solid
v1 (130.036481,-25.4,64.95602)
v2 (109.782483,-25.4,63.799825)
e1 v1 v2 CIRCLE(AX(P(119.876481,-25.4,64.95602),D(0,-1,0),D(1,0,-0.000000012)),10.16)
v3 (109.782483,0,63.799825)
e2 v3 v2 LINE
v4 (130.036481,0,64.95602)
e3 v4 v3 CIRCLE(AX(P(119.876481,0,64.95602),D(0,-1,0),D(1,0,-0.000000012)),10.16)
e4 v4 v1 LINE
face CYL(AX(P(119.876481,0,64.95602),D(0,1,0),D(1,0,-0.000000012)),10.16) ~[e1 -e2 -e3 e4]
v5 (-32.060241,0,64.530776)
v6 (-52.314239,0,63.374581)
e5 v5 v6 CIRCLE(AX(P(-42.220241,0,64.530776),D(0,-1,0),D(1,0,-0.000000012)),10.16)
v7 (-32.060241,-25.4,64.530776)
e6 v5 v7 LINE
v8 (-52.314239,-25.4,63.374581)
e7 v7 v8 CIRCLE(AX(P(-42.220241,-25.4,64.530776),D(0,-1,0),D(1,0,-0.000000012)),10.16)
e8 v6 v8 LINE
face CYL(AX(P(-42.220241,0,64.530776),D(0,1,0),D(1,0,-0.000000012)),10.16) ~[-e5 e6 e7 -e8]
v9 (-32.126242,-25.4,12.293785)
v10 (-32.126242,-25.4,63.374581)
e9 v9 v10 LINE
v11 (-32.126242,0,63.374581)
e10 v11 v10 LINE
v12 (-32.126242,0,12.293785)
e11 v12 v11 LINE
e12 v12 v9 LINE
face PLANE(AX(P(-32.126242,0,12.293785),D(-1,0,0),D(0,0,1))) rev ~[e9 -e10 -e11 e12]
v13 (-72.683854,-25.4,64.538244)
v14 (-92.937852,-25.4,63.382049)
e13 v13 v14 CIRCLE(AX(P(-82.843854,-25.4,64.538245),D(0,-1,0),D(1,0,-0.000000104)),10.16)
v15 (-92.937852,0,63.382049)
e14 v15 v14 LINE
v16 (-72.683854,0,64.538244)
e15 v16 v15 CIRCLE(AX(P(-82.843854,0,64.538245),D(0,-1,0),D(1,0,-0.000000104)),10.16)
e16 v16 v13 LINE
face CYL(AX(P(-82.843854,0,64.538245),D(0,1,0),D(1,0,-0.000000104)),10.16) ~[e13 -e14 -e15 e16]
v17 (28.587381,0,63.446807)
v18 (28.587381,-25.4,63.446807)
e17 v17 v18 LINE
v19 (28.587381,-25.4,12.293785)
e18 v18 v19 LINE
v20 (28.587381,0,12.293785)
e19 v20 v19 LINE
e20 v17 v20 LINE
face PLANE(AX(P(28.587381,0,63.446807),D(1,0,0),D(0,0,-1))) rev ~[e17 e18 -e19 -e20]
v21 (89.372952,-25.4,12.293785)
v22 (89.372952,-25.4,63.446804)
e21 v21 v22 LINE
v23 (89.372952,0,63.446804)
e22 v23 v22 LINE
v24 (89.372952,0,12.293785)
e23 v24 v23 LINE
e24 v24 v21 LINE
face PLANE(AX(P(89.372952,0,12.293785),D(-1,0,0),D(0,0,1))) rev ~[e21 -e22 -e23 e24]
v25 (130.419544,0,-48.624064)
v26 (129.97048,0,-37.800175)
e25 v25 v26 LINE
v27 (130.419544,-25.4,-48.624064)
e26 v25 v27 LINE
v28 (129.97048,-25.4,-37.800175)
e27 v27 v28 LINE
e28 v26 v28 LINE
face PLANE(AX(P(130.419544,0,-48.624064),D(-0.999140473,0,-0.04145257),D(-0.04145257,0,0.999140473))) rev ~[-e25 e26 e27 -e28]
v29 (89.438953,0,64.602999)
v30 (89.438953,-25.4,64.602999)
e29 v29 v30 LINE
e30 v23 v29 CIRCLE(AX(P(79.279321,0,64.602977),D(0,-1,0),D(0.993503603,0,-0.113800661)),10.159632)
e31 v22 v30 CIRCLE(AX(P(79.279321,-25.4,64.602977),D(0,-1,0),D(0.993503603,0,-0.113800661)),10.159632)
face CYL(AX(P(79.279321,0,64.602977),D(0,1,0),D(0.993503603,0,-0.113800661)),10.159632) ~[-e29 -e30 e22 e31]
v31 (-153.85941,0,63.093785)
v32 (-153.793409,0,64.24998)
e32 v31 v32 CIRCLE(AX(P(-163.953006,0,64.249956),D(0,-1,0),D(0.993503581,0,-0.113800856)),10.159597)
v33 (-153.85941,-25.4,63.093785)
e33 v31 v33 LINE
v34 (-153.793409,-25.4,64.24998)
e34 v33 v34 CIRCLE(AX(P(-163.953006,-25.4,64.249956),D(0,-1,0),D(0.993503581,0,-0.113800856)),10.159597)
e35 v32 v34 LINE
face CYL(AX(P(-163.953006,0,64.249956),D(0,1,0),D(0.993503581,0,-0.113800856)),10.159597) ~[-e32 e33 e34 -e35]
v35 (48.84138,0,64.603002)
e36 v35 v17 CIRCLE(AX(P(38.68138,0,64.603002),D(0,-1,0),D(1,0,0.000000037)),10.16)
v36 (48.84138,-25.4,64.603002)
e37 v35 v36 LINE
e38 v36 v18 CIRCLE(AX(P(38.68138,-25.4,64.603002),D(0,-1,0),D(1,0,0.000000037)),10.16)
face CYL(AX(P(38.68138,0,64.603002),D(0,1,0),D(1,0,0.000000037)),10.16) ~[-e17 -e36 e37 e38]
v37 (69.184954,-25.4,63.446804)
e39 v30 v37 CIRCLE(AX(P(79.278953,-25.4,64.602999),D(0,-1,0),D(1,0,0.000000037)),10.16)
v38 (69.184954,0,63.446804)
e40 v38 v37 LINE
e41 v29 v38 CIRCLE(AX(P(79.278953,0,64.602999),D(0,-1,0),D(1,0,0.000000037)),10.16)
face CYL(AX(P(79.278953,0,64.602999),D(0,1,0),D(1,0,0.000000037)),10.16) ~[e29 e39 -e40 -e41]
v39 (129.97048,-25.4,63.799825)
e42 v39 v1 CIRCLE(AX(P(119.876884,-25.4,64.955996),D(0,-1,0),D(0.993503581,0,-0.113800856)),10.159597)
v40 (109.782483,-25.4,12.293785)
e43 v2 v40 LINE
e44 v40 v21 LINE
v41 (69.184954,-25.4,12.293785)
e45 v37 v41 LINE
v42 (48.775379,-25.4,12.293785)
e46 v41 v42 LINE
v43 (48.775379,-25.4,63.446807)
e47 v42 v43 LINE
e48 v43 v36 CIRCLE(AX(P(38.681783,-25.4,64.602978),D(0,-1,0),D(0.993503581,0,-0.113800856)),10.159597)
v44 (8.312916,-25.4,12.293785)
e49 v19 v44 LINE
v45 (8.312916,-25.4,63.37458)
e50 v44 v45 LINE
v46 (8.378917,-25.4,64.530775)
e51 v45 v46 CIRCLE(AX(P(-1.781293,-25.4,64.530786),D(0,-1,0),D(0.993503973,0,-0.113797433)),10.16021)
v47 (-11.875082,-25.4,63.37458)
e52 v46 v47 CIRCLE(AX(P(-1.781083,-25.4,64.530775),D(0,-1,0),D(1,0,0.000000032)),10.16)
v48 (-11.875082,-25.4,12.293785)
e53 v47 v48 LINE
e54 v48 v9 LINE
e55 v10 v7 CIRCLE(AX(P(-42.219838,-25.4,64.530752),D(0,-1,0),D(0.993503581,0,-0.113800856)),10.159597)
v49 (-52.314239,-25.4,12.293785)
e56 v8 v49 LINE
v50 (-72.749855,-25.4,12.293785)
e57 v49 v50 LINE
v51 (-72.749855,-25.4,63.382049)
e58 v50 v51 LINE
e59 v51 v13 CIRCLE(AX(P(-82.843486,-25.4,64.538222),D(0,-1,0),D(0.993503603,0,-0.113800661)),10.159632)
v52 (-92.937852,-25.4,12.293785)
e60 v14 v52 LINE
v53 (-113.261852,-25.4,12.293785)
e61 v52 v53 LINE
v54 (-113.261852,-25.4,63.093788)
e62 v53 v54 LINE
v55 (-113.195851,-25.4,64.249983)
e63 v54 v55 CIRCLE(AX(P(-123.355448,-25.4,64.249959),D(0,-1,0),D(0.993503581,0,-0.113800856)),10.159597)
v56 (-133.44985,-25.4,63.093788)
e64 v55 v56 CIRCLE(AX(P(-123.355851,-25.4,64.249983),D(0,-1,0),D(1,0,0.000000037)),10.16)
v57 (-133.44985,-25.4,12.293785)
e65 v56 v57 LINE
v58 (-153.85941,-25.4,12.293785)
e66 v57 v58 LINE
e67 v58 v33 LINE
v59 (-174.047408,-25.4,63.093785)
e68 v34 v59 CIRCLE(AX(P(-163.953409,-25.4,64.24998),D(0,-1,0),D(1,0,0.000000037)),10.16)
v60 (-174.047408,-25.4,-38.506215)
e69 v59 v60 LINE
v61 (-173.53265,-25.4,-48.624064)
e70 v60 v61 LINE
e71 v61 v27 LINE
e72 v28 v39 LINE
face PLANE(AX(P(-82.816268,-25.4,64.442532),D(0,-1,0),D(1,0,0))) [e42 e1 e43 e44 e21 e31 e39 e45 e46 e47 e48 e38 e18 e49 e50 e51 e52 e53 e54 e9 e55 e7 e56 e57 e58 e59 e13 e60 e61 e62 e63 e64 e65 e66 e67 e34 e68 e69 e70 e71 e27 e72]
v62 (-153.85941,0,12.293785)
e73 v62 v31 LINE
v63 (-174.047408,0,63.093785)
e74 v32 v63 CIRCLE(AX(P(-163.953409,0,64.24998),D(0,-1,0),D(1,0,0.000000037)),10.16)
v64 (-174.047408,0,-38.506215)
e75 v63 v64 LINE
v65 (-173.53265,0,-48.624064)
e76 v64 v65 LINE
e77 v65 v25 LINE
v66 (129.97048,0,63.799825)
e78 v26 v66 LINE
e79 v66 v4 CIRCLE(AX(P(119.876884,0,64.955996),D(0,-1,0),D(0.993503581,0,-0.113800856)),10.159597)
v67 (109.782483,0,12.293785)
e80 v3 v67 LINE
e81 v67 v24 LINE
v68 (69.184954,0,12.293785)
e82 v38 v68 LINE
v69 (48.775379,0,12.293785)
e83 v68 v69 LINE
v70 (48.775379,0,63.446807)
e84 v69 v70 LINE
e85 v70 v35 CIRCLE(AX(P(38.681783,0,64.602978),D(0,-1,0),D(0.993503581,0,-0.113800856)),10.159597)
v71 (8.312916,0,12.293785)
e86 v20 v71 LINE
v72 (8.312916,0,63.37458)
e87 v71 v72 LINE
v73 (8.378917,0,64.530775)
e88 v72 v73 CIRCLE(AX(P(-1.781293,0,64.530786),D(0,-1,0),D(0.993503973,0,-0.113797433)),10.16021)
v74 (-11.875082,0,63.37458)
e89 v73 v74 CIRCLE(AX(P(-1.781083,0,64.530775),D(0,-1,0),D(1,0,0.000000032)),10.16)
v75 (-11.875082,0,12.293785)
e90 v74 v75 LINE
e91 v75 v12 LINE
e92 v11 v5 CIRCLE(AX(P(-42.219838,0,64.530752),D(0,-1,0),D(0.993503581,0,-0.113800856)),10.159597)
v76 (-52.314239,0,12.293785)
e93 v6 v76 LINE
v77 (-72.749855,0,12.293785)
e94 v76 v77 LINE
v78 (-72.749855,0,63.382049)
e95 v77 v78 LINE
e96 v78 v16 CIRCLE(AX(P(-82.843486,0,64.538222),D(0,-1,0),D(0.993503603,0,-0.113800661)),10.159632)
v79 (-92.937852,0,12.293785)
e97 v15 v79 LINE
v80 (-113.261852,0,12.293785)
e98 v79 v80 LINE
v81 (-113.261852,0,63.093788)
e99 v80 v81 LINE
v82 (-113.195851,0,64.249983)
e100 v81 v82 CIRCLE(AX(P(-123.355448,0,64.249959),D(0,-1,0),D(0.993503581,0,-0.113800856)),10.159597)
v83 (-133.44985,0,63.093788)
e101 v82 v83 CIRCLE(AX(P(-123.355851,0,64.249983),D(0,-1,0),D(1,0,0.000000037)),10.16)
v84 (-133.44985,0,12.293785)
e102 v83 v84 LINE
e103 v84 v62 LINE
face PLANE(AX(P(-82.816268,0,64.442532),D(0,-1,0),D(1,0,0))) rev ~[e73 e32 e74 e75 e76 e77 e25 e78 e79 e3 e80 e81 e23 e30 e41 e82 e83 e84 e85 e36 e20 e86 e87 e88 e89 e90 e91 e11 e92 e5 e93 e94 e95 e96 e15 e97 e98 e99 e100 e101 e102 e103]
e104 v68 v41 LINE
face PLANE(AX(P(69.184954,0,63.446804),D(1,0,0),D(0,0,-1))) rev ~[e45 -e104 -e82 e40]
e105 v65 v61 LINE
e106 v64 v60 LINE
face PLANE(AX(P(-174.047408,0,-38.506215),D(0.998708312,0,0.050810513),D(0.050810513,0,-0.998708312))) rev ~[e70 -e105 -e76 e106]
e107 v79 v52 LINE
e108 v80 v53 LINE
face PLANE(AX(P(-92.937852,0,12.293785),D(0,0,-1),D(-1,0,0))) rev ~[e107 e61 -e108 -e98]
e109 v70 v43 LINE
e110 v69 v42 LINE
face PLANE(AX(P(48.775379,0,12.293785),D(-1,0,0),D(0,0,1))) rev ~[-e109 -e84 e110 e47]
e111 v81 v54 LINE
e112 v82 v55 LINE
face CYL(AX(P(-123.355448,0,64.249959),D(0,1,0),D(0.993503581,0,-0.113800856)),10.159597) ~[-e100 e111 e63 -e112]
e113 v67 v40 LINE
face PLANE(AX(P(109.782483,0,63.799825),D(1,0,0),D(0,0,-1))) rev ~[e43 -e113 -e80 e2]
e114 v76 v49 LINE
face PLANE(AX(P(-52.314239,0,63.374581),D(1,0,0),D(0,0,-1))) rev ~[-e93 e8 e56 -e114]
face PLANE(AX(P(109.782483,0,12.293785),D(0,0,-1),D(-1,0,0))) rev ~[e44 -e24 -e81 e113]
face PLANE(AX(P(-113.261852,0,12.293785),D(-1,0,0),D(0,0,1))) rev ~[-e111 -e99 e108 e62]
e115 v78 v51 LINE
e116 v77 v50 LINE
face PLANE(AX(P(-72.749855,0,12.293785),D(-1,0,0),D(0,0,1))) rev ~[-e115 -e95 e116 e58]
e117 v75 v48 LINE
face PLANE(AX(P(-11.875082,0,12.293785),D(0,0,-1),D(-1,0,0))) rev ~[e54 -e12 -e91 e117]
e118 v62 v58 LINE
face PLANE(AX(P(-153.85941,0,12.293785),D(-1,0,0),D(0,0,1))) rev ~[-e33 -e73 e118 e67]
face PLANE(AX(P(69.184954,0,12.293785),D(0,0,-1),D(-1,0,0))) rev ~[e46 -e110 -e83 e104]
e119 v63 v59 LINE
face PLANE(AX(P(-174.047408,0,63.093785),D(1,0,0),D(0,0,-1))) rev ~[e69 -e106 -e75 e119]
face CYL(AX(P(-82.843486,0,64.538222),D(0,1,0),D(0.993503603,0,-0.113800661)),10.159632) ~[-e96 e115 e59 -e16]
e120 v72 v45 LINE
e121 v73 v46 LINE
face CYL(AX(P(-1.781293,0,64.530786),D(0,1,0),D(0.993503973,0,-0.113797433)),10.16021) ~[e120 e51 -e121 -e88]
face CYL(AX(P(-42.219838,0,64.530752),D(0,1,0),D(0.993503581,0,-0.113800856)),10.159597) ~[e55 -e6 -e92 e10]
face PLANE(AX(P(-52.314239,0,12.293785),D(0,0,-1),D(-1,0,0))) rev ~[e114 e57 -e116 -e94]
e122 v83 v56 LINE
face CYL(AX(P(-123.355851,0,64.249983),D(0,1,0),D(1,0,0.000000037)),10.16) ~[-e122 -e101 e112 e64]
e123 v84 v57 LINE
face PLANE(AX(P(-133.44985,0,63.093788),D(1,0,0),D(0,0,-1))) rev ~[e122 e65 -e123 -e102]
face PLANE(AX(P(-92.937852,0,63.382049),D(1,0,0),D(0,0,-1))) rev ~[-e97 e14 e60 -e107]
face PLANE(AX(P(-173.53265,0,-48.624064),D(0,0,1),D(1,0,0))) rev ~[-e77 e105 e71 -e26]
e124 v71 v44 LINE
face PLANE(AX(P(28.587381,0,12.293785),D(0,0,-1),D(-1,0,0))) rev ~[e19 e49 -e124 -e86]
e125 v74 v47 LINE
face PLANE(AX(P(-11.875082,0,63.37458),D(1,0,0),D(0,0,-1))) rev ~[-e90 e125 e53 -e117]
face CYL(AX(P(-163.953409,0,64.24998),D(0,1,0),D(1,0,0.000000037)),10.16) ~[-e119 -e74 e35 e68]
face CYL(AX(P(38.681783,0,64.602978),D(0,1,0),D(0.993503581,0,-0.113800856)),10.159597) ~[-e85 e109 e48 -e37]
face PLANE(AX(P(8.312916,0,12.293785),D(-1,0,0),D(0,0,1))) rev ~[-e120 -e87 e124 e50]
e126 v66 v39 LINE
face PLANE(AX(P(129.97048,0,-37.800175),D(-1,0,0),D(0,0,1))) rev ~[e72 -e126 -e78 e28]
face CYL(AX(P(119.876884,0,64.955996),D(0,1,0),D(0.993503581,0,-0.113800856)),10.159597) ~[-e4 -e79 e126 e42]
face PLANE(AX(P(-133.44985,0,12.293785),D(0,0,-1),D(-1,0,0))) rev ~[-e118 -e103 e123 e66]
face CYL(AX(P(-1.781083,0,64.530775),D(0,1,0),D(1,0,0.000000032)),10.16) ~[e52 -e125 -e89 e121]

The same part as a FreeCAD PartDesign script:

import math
import FreeCAD as App
import Part
import Sketcher
from FreeCAD import Vector
Q = App.Units.Quantity

doc = App.newDocument("Part")
body = doc.addObject("PartDesign::Body", "Body")

# Sketch on XZ plane
sketch1 = body.newObject("Sketcher::SketchObject", "Sketch")
sketch1.AttachmentSupport = (doc.getObject("XZ_Plane"), [""])
sketch1.MapMode = "FlatFace"
sketch1.addGeometry([
    Part.ArcOfCircle(Part.Circle(Vector(-82.8, 64.5, 0), Vector(0, 0, 1), 10.2), math.radians(-6.53), math.radians(0)),  # 0
    Part.ArcOfCircle(Part.Circle(Vector(-82.8, 64.5, 0), Vector(0, 0, 1), 10.2), math.radians(0), math.radians(187)),  # 1
    Part.LineSegment(Vector(-92.9, 63.4, 0), Vector(-92.9, 12.3, 0)),  # 2
    Part.LineSegment(Vector(-92.9, 12.3, 0), Vector(-113.3, 12.3, 0)),  # 3
    Part.LineSegment(Vector(-113.3, 12.3, 0), Vector(-113.3, 63.1, 0)),  # 4
    Part.ArcOfCircle(Part.Circle(Vector(-123.4, 64.2, 0), Vector(0, 0, 1), 10.2), math.radians(-6.53), math.radians(0)),  # 5
    Part.ArcOfCircle(Part.Circle(Vector(-123.4, 64.2, 0), Vector(0, 0, 1), 10.2), math.radians(0), math.radians(187)),  # 6
    Part.LineSegment(Vector(-133.4, 63.1, 0), Vector(-133.4, 12.3, 0)),  # 7
    Part.LineSegment(Vector(-133.4, 12.3, 0), Vector(-153.9, 12.3, 0)),  # 8
    Part.LineSegment(Vector(-153.9, 12.3, 0), Vector(-153.9, 63.1, 0)),  # 9
    Part.ArcOfCircle(Part.Circle(Vector(-164, 64.2, 0), Vector(0, 0, 1), 10.2), math.radians(-6.53), math.radians(0)),  # 10
    Part.ArcOfCircle(Part.Circle(Vector(-164, 64.2, 0), Vector(0, 0, 1), 10.2), math.radians(0), math.radians(187)),  # 11
    Part.LineSegment(Vector(-174, 63.1, 0), Vector(-174, -38.5, 0)),  # 12
    Part.LineSegment(Vector(-174, -38.5, 0), Vector(-173.5, -48.6, 0)),  # 13
    Part.LineSegment(Vector(-173.5, -48.6, 0), Vector(130.4, -48.6, 0)),  # 14
    Part.LineSegment(Vector(130.4, -48.6, 0), Vector(130, -37.8, 0)),  # 15
    Part.LineSegment(Vector(130, -37.8, 0), Vector(130, 63.8, 0)),  # 16
    Part.ArcOfCircle(Part.Circle(Vector(119.9, 65, 0), Vector(0, 0, 1), 10.2), math.radians(-6.53), math.radians(0)),  # 17
    Part.ArcOfCircle(Part.Circle(Vector(119.9, 65, 0), Vector(0, 0, 1), 10.2), math.radians(0), math.radians(187)),  # 18
    Part.LineSegment(Vector(109.8, 63.8, 0), Vector(109.8, 12.3, 0)),  # 19
    Part.LineSegment(Vector(109.8, 12.3, 0), Vector(89.4, 12.3, 0)),  # 20
    Part.LineSegment(Vector(89.4, 12.3, 0), Vector(89.4, 63.4, 0)),  # 21
    Part.ArcOfCircle(Part.Circle(Vector(79.3, 64.6, 0), Vector(0, 0, 1), 10.2), math.radians(-6.53), math.radians(0)),  # 22
    Part.ArcOfCircle(Part.Circle(Vector(79.3, 64.6, 0), Vector(0, 0, 1), 10.2), math.radians(0), math.radians(187)),  # 23
    Part.LineSegment(Vector(69.2, 63.4, 0), Vector(69.2, 12.3, 0)),  # 24
    Part.LineSegment(Vector(69.2, 12.3, 0), Vector(48.8, 12.3, 0)),  # 25
    Part.LineSegment(Vector(48.8, 12.3, 0), Vector(48.8, 63.4, 0)),  # 26
    Part.ArcOfCircle(Part.Circle(Vector(38.7, 64.6, 0), Vector(0, 0, 1), 10.2), math.radians(-6.53), math.radians(0)),  # 27
    Part.ArcOfCircle(Part.Circle(Vector(38.7, 64.6, 0), Vector(0, 0, 1), 10.2), math.radians(0), math.radians(187)),  # 28
    Part.LineSegment(Vector(28.6, 63.4, 0), Vector(28.6, 12.3, 0)),  # 29
    Part.LineSegment(Vector(28.6, 12.3, 0), Vector(8.3, 12.3, 0)),  # 30
    Part.LineSegment(Vector(8.3, 12.3, 0), Vector(8.3, 63.4, 0)),  # 31
    Part.ArcOfCircle(Part.Circle(Vector(-1.8, 64.5, 0), Vector(0, 0, 1), 10.2), math.radians(-6.53), math.radians(0)),  # 32
    Part.ArcOfCircle(Part.Circle(Vector(-1.8, 64.5, 0), Vector(0, 0, 1), 10.2), math.radians(0), math.radians(187)),  # 33
    Part.LineSegment(Vector(-11.9, 63.4, 0), Vector(-11.9, 12.3, 0)),  # 34
    Part.LineSegment(Vector(-11.9, 12.3, 0), Vector(-32.1, 12.3, 0)),  # 35
    Part.LineSegment(Vector(-32.1, 12.3, 0), Vector(-32.1, 63.4, 0)),  # 36
    Part.ArcOfCircle(Part.Circle(Vector(-42.2, 64.5, 0), Vector(0, 0, 1), 10.2), math.radians(-6.53), math.radians(0)),  # 37
    Part.ArcOfCircle(Part.Circle(Vector(-42.2, 64.5, 0), Vector(0, 0, 1), 10.2), math.radians(0), math.radians(187)),  # 38
    Part.LineSegment(Vector(-52.3, 63.4, 0), Vector(-52.3, 12.3, 0)),  # 39
    Part.LineSegment(Vector(-52.3, 12.3, 0), Vector(-72.7, 12.3, 0)),  # 40
    Part.LineSegment(Vector(-72.7, 12.3, 0), Vector(-72.7, 63.4, 0)),  # 41
], False)
sketch1.addConstraint([
    Sketcher.Constraint("Coincident", 0, 2, 1, 1),
    Sketcher.Constraint("Coincident", 1, 2, 2, 1),
    Sketcher.Constraint("Coincident", 2, 2, 3, 1),
    Sketcher.Constraint("Coincident", 3, 2, 4, 1),
    Sketcher.Constraint("Coincident", 4, 2, 5, 1),
    Sketcher.Constraint("Coincident", 5, 2, 6, 1),
    Sketcher.Constraint("Coincident", 6, 2, 7, 1),
    Sketcher.Constraint("Coincident", 7, 2, 8, 1),
    Sketcher.Constraint("Coincident", 8, 2, 9, 1),
    Sketcher.Constraint("Coincident", 9, 2, 10, 1),
    Sketcher.Constraint("Coincident", 10, 2, 11, 1),
    Sketcher.Constraint("Coincident", 11, 2, 12, 1),
    Sketcher.Constraint("Coincident", 12, 2, 13, 1),
    Sketcher.Constraint("Coincident", 13, 2, 14, 1),
    Sketcher.Constraint("Coincident", 14, 2, 15, 1),
    Sketcher.Constraint("Coincident", 15, 2, 16, 1),
    Sketcher.Constraint("Coincident", 16, 2, 17, 1),
    Sketcher.Constraint("Coincident", 17, 2, 18, 1),
    Sketcher.Constraint("Coincident", 18, 2, 19, 1),
    Sketcher.Constraint("Coincident", 19, 2, 20, 1),
    Sketcher.Constraint("Coincident", 20, 2, 21, 1),
    Sketcher.Constraint("Coincident", 21, 2, 22, 1),
    Sketcher.Constraint("Coincident", 22, 2, 23, 1),
    Sketcher.Constraint("Coincident", 23, 2, 24, 1),
    Sketcher.Constraint("Coincident", 24, 2, 25, 1),
    Sketcher.Constraint("Coincident", 25, 2, 26, 1),
    Sketcher.Constraint("Coincident", 26, 2, 27, 1),
    Sketcher.Constraint("Coincident", 27, 2, 28, 1),
    Sketcher.Constraint("Coincident", 28, 2, 29, 1),
    Sketcher.Constraint("Coincident", 29, 2, 30, 1),
    Sketcher.Constraint("Coincident", 30, 2, 31, 1),
    Sketcher.Constraint("Coincident", 31, 2, 32, 1),
    Sketcher.Constraint("Tangent", 32, 2, 33, 1),
    Sketcher.Constraint("Coincident", 33, 2, 34, 1),
    Sketcher.Constraint("Coincident", 34, 2, 35, 1),
    Sketcher.Constraint("Coincident", 35, 2, 36, 1),
    Sketcher.Constraint("Coincident", 36, 2, 37, 1),
    Sketcher.Constraint("Coincident", 37, 2, 38, 1),
    Sketcher.Constraint("Coincident", 38, 2, 39, 1),
    Sketcher.Constraint("Coincident", 39, 2, 40, 1),
    Sketcher.Constraint("Coincident", 40, 2, 41, 1),
    Sketcher.Constraint("Coincident", 41, 2, 0, 1),
    Sketcher.Constraint("Vertical", 2),
    Sketcher.Constraint("Horizontal", 3),
    Sketcher.Constraint("Vertical", 4),
    Sketcher.Constraint("Vertical", 7),
    Sketcher.Constraint("Horizontal", 8),
    Sketcher.Constraint("Vertical", 9),
    Sketcher.Constraint("Vertical", 12),
    Sketcher.Constraint("Horizontal", 14),
    Sketcher.Constraint("Vertical", 16),
    Sketcher.Constraint("Vertical", 19),
    Sketcher.Constraint("Horizontal", 20),
    Sketcher.Constraint("Vertical", 21),
    Sketcher.Constraint("Vertical", 24),
    Sketcher.Constraint("Horizontal", 25),
    Sketcher.Constraint("Vertical", 26),
    Sketcher.Constraint("Vertical", 29),
    Sketcher.Constraint("Horizontal", 30),
    Sketcher.Constraint("Vertical", 31),
    Sketcher.Constraint("Vertical", 34),
    Sketcher.Constraint("Horizontal", 35),
    Sketcher.Constraint("Vertical", 36),
    Sketcher.Constraint("Vertical", 39),
    Sketcher.Constraint("Horizontal", 40),
    Sketcher.Constraint("Vertical", 41),
    Sketcher.Constraint("Equal", 1, 6),
    Sketcher.Constraint("Equal", 5, 10),
    Sketcher.Constraint("Equal", 6, 11),
    Sketcher.Constraint("Equal", 10, 17),
    Sketcher.Constraint("Equal", 11, 18),
    Sketcher.Constraint("Equal", 0, 22),
    Sketcher.Constraint("Equal", 18, 23),
    Sketcher.Constraint("Equal", 17, 27),
    Sketcher.Constraint("Equal", 23, 28),
    Sketcher.Constraint("Equal", 28, 33),
    Sketcher.Constraint("Equal", 27, 37),
    Sketcher.Constraint("Equal", 33, 38),
    Sketcher.Constraint("Horizontal", 22, 3, 27, 3),
    Sketcher.Constraint("Horizontal", 33, 3, 38, 3),
    Sketcher.Constraint("Horizontal", 1, 3, 0, 2),
    Sketcher.Constraint("Horizontal", 6, 3, 5, 2),
    Sketcher.Constraint("Horizontal", 4, 2, 6, 2),
    Sketcher.Constraint("Horizontal", 3, 2, 7, 2),
    Sketcher.Constraint("Horizontal", 11, 3, 10, 2),
    Sketcher.Constraint("Horizontal", 9, 2, 11, 2),
    Sketcher.Constraint("Horizontal", 18, 3, 17, 2),
    Sketcher.Constraint("Horizontal", 16, 2, 18, 2),
    Sketcher.Constraint("Horizontal", 8, 2, 19, 2),
    Sketcher.Constraint("Horizontal", 23, 3, 22, 2),
    Sketcher.Constraint("Horizontal", 21, 2, 23, 2),
    Sketcher.Constraint("Horizontal", 20, 2, 24, 2),
    Sketcher.Constraint("Horizontal", 28, 3, 27, 2),
    Sketcher.Constraint("Horizontal", 26, 2, 28, 2),
    Sketcher.Constraint("Horizontal", 25, 2, 29, 2),
    Sketcher.Constraint("Horizontal", 38, 3, 32, 2),
    Sketcher.Constraint("Horizontal", 31, 2, 33, 2),
    Sketcher.Constraint("Horizontal", 30, 2, 34, 2),
    Sketcher.Constraint("Horizontal", 33, 2, 36, 2),
    Sketcher.Constraint("Horizontal", 32, 2, 37, 2),
    Sketcher.Constraint("Horizontal", 36, 2, 38, 2),
    Sketcher.Constraint("Horizontal", 35, 2, 39, 2),
    Sketcher.Constraint("Horizontal", 1, 2, 41, 2),
    Sketcher.Constraint("Equal", 12, 16),
    Sketcher.Constraint("Radius", 1, Q("0.4 in")),
    Sketcher.Constraint("DistanceY", 4, 1, 4, 2, Q("2.0000001 in")),
    Sketcher.Constraint("DistanceY", 9, 1, 9, 2, Q("2 in")),
    Sketcher.Constraint("DistanceY", 12, 2, 12, 1, Q("4 in")),
    Sketcher.Constraint("Radius", 0, Q("10.159632 mm")),
    Sketcher.Constraint("Radius", 32, Q("10.16021 mm")),
    Sketcher.Constraint("DistanceX", 3, 2, 3, 1, Q("20.324 mm")),
    Sketcher.Constraint("Radius", 5, Q("10.159597 mm")),
    Sketcher.Constraint("Distance", 15, Q("10.8332 mm")),
    Sketcher.Constraint("DistanceX", 8, 2, 8, 1, Q("20.40956 mm")),
    Sketcher.Constraint("DistanceX", 20, 2, 20, 1, Q("20.409531 mm")),
    Sketcher.Constraint("DistanceX", 35, 2, 35, 1, Q("20.25116 mm")),
    Sketcher.Constraint("DistanceY", 19, 2, 19, 1, Q("51.50604 mm")),
    Sketcher.Constraint("DistanceY", 21, 1, 21, 2, Q("51.153019 mm")),
    Sketcher.Constraint("DistanceY", -1, 1, 23, 3, Q("64.602999 mm")),
    Sketcher.Constraint("DistanceY", -1, 1, 28, 3, Q("64.603002 mm")),
    Sketcher.Constraint("DistanceY", 0, 3, 18, 3, Q("0.417798 mm")),
    Sketcher.Constraint("DistanceX", 27, 3, 18, 3, Q("81.194698 mm")),
    Sketcher.Constraint("DistanceX", 1, 2, 1, 3, Q("10.093998 mm")),
    Sketcher.Constraint("DistanceX", 6, 3, 1, 2, Q("30.417999 mm")),
    Sketcher.Constraint("DistanceX", 6, 2, 6, 3, Q("10.093999 mm")),
    Sketcher.Constraint("DistanceX", 11, 3, 8, 2, Q("10.093999 mm")),
    Sketcher.Constraint("DistanceX", 11, 2, 11, 3, Q("10.093999 mm")),
    Sketcher.Constraint("DistanceX", 13, 2, 7, 2, Q("40.0828 mm")),
    Sketcher.Constraint("DistanceX", 18, 3, 15, 2, Q("10.093999 mm")),
    Sketcher.Constraint("DistanceX", 18, 2, 18, 3, Q("10.093998 mm")),
    Sketcher.Constraint("DistanceX", 23, 3, 20, 2, Q("10.093999 mm")),
    Sketcher.Constraint("DistanceX", 23, 2, 23, 3, Q("10.093999 mm")),
    Sketcher.Constraint("DistanceX", 28, 3, 25, 2, Q("10.093999 mm")),
    Sketcher.Constraint("DistanceX", 33, 3, 30, 2, Q("10.093999 mm")),
    Sketcher.Constraint("DistanceY", 30, 2, 32, 3, Q("52.237001 mm")),
    Sketcher.Constraint("DistanceX", 38, 3, 35, 2, Q("10.093999 mm")),
    Sketcher.Constraint("DistanceX", 40, 2, 0, 2, Q("0.066001 mm")),
    Sketcher.Constraint("DistanceX", 14, 1, 14, 2, Q("303.952194 mm")),
    Sketcher.Constraint("DistanceX", 30, 2, 30, 1, Q("20.274465 mm")),
    Sketcher.Constraint("DistanceX", 40, 2, 40, 1, Q("20.435616 mm")),
    Sketcher.Constraint("DistanceX", 6, 3, -1, 1, Q("123.355851 mm")),
])
pad1 = body.newObject("PartDesign::Pad", "Pad")
pad1.Profile = sketch1
pad1.Length = Q("1 in")

doc.recompute()
